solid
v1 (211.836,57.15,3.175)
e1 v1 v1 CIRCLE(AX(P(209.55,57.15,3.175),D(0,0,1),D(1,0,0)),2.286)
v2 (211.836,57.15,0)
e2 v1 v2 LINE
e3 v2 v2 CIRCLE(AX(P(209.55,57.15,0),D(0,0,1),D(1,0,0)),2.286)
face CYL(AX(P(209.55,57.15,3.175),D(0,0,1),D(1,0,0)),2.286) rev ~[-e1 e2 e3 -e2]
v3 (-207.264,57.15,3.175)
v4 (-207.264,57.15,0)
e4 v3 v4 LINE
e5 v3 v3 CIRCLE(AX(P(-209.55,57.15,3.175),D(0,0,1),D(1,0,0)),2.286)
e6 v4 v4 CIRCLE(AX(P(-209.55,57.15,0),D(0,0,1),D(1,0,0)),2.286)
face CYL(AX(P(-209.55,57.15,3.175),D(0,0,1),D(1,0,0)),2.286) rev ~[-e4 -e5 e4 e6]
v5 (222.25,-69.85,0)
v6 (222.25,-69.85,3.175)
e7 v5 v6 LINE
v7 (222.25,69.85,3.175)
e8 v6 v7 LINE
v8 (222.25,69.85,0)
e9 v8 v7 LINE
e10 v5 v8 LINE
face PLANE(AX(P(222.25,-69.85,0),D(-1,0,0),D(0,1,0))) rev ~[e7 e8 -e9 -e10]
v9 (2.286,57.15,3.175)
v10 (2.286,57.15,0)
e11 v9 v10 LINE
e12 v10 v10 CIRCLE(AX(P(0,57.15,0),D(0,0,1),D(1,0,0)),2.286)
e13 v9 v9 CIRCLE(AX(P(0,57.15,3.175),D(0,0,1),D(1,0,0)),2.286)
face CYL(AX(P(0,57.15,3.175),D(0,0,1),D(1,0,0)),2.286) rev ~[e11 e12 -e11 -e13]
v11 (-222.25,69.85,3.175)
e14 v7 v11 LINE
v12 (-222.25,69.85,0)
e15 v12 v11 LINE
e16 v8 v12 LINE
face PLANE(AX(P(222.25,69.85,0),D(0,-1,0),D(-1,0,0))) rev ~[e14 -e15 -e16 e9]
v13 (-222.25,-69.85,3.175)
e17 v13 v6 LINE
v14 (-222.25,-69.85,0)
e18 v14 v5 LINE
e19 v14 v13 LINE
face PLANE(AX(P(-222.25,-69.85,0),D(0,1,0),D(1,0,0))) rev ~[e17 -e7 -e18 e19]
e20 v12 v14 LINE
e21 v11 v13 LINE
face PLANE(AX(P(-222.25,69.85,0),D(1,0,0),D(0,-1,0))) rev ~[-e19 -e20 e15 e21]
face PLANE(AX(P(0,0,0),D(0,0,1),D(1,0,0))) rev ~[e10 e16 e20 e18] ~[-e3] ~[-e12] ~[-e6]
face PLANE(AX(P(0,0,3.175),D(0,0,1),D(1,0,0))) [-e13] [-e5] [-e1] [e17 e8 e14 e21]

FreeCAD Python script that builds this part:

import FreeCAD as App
import Part
import Sketcher
from FreeCAD import Vector
Q = App.Units.Quantity

doc = App.newDocument("Part")
body = doc.addObject("PartDesign::Body", "Body")

sketch1 = body.newObject("Sketcher::SketchObject", "Sketch")
sketch1.AttachmentSupport = (doc.getObject("XY_Plane"), [""])
sketch1.MapMode = "FlatFace"
sketch1.addGeometry([
    Part.LineSegment(Vector(-222, 70, 0), Vector(-222, -70, 0)),
    Part.LineSegment(Vector(-222, -70, 0), Vector(222, -70, 0)),
    Part.LineSegment(Vector(222, -70, 0), Vector(222, 70, 0)),
    Part.LineSegment(Vector(222, 70, 0), Vector(-222, 70, 0)),
], False)
sketch1.addConstraint([
    Sketcher.Constraint("Coincident", 0, 2, 1, 1),
    Sketcher.Constraint("Coincident", 1, 2, 2, 1),
    Sketcher.Constraint("Coincident", 2, 2, 3, 1),
    Sketcher.Constraint("Coincident", 3, 2, 0, 1),
    Sketcher.Constraint("Vertical", 0),
    Sketcher.Constraint("Horizontal", 1),
    Sketcher.Constraint("Vertical", 2),
    Sketcher.Constraint("Horizontal", 3),
    Sketcher.Constraint("Symmetric", 0, 2, 2, 2, -1, 1),
    Sketcher.Constraint("DistanceX", 1, 1, 1, 2, Q("17.5 in")),
    Sketcher.Constraint("DistanceY", 0, 2, 0, 1, Q("5.5 in")),
])
pad1 = body.newObject("PartDesign::Pad", "Pad")
pad1.Profile = sketch1
pad1.Length = Q("0.125 in")

sketch2 = body.newObject("Sketcher::SketchObject", "Sketch001")
sketch2.AttachmentSupport = (doc.getObject("XY_Plane"), [""])
sketch2.MapMode = "FlatFace"
sketch2.AttachmentOffset = App.Placement(Vector(0, 0, 0.125 * 25.4), App.Rotation())
sketch2.addGeometry([
    Part.Circle(Vector(209.6, 57.1, 0), Vector(0, 0, 1), 2.3),
    Part.Circle(Vector(-209.6, 57.1, 0), Vector(0, 0, 1), 2.3),
    Part.Circle(Vector(0, 57.1, 0), Vector(0, 0, 1), 2.3),
], False)
sketch2.addConstraint([
    Sketcher.Constraint("Equal", 0, 1),
    Sketcher.Constraint("Equal", 1, 2),
    Sketcher.Constraint("Symmetric", 0, 3, 1, 3, -2),
    Sketcher.Constraint("PointOnObject", 2, 3, -2),
    Sketcher.Constraint("Horizontal", 1, 3, 2, 3),
    Sketcher.Constraint("Diameter", 0, Q("0.18 in")),
    Sketcher.Constraint("DistanceX", 1, 3, 0, 3, Q("16.5 in")),
    Sketcher.Constraint("DistanceY", -1, 1, 0, 3, Q("2.25 in")),
])
pocket1 = body.newObject("PartDesign::Pocket", "Pocket")
pocket1.Profile = sketch2
pocket1.Length = Q("0.125 in")

doc.recompute()
